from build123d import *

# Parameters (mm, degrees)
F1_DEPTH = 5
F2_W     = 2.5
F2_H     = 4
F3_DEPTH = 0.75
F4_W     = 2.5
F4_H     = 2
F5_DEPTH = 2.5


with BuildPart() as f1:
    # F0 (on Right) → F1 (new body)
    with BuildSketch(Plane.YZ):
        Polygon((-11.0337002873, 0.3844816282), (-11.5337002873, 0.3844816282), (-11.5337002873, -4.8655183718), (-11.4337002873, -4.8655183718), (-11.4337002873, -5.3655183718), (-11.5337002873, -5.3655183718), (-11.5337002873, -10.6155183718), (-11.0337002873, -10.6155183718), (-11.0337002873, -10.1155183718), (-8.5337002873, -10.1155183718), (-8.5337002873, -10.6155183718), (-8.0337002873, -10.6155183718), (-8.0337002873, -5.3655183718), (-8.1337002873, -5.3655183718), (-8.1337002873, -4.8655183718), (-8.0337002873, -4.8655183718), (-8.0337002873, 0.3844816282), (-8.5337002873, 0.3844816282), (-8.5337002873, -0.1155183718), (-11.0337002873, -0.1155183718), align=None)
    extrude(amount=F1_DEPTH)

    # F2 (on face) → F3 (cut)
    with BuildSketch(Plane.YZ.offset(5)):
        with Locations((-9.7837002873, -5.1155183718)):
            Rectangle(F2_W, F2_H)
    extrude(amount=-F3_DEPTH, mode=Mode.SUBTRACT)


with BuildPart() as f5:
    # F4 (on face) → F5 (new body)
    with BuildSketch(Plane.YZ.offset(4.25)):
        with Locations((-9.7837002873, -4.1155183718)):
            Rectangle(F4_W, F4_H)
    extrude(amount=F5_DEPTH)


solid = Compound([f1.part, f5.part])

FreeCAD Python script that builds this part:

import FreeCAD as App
import Part
import Sketcher
Q = App.Units.Quantity


def add_polygon(sketch, points):
    """Adds a closed chain of lines whose ends are joined by coincident constraints."""
    first, n = sketch.GeometryCount, len(points)
    for a, b in zip(points, points[1:] + points[:1]):
        sketch.addGeometry(Part.LineSegment(App.Vector(*a, 0), App.Vector(*b, 0)), False)
    for i in range(n):
        sketch.addConstraint(Sketcher.Constraint("Coincident", first + i, 2, first + (i + 1) % n, 1))

doc = App.newDocument("Part")
body = doc.addObject("PartDesign::Body", "Body")

sketch1 = body.newObject("Sketcher::SketchObject", "Sketch")
sketch1.AttachmentSupport = (doc.getObject("YZ_Plane"), [""])
sketch1.MapMode = "FlatFace"
add_polygon(sketch1, [(-11.03, 0.38), (-11.53, 0.38), (-11.53, -4.87), (-11.43, -4.87), (-11.43, -5.37), (-11.53, -5.37), (-11.53, -10.62), (-11.03, -10.62), (-11.03, -10.12), (-8.53, -10.12), (-8.53, -10.62), (-8.03, -10.62), (-8.03, -5.37), (-8.13, -5.37), (-8.13, -4.87), (-8.03, -4.87), (-8.03, 0.38), (-8.53, 0.38), (-8.53, -0.12), (-11.03, -0.12)])
sketch1.addConstraint([
    Sketcher.Constraint("Horizontal", 0),
    Sketcher.Constraint("Vertical", 1),
    Sketcher.Constraint("Horizontal", 2),
    Sketcher.Constraint("Vertical", 3),
    Sketcher.Constraint("Horizontal", 4),
    Sketcher.Constraint("Vertical", 5),
    Sketcher.Constraint("Horizontal", 6),
    Sketcher.Constraint("Vertical", 7),
    Sketcher.Constraint("Horizontal", 8),
    Sketcher.Constraint("Vertical", 9),
    Sketcher.Constraint("Horizontal", 10),
    Sketcher.Constraint("Vertical", 11),
    Sketcher.Constraint("Horizontal", 12),
    Sketcher.Constraint("Vertical", 13),
    Sketcher.Constraint("Horizontal", 14),
    Sketcher.Constraint("Vertical", 15),
    Sketcher.Constraint("Horizontal", 16),
    Sketcher.Constraint("Vertical", 17),
    Sketcher.Constraint("Horizontal", 18),
    Sketcher.Constraint("Vertical", 19),
    Sketcher.Constraint("Horizontal", 6, 2, 9, 2),
    Sketcher.Constraint("Horizontal", 4, 2, 11, 2),
    Sketcher.Constraint("Horizontal", 2, 2, 13, 2),
    Sketcher.Constraint("Horizontal", 0, 2, 15, 2),
    Sketcher.Constraint("Vertical", 1, 2, 4, 2),
    Sketcher.Constraint("Vertical", 11, 2, 14, 2),
    Sketcher.Constraint("Vertical", 9, 2, 16, 2),
    Sketcher.Constraint("Vertical", 7, 2, 18, 2),
    Sketcher.Constraint("Equal", 6, 10),
    Sketcher.Constraint("Equal", 4, 12),
    Sketcher.Constraint("Equal", 16, 3),
    Sketcher.Constraint("Equal", 1, 5),
    Sketcher.Constraint("Equal", 3, 7),
    Sketcher.Constraint("Equal", 13, 17),
    Sketcher.Constraint("DistanceX", 0, 2, 0, 1, Q("0.5 mm")),
    Sketcher.Constraint("DistanceX", 2, 1, 2, 2, Q("0.1 mm")),
    Sketcher.Constraint("DistanceX", 8, 1, 8, 2, Q("2.5 mm")),
    Sketcher.Constraint("DistanceY", 5, 2, 0, 2, Q("11 mm")),
    Sketcher.Constraint("DistanceX", 0, 2, -1, 1, Q("11.5337 mm")),
    Sketcher.Constraint("DistanceY", -1, 1, 0, 2, Q("0.384482 mm")),
])
pad1 = body.newObject("PartDesign::Pad", "Pad")
pad1.Profile = sketch1
pad1.Length = 5

sketch2 = body.newObject("Sketcher::SketchObject", "Sketch001")
sketch2.AttachmentSupport = (doc.getObject("YZ_Plane"), [""])
sketch2.MapMode = "FlatFace"
sketch2.AttachmentOffset = App.Placement(App.Vector(0, 0, 5), App.Rotation())
add_polygon(sketch2, [(-11, -3.1), (-11, -7.1), (-8.5, -7.1), (-8.5, -3.1)])
sketch2.addConstraint([
    Sketcher.Constraint("Vertical", 0),
    Sketcher.Constraint("Horizontal", 1),
    Sketcher.Constraint("Vertical", 2),
    Sketcher.Constraint("Horizontal", 3),
    Sketcher.Constraint("DistanceY", 0, 2, 0, 1, Q("4 mm")),
    Sketcher.Constraint("DistanceX", 1, 1, 1, 2, Q("2.5 mm")),
    Sketcher.Constraint("DistanceX", 0, 2, -1, 1, Q("11.0337 mm")),
    Sketcher.Constraint("DistanceY", 0, 2, -1, 1, Q("7.115518 mm")),
])
pocket1 = body.newObject("PartDesign::Pocket", "Pocket")
pocket1.Profile = sketch2
pocket1.Length = 0.75
body2 = doc.addObject("PartDesign::Body", "Body001")

sketch3 = body2.newObject("Sketcher::SketchObject", "Sketch002")
sketch3.AttachmentSupport = (doc.getObject("YZ_Plane001"), [""])
sketch3.MapMode = "FlatFace"
sketch3.AttachmentOffset = App.Placement(App.Vector(0, 0, 4.25), App.Rotation())
add_polygon(sketch3, [(-11, -3.1), (-11, -5.1), (-8.5, -5.1), (-8.5, -3.1)])
sketch3.addConstraint([
    Sketcher.Constraint("Vertical", 0),
    Sketcher.Constraint("Horizontal", 1),
    Sketcher.Constraint("Vertical", 2),
    Sketcher.Constraint("Horizontal", 3),
    Sketcher.Constraint("DistanceY", 0, 2, 0, 1, Q("2 mm")),
    Sketcher.Constraint("DistanceX", 1, 1, 1, 2, Q("2.5 mm")),
    Sketcher.Constraint("DistanceX", 0, 2, -1, 1, Q("11.0337 mm")),
    Sketcher.Constraint("DistanceY", 0, 2, -1, 1, Q("5.115518 mm")),
])
pad2 = body2.newObject("PartDesign::Pad", "Pad001")
pad2.Profile = sketch3
pad2.Length = 2.5

doc.recompute()
